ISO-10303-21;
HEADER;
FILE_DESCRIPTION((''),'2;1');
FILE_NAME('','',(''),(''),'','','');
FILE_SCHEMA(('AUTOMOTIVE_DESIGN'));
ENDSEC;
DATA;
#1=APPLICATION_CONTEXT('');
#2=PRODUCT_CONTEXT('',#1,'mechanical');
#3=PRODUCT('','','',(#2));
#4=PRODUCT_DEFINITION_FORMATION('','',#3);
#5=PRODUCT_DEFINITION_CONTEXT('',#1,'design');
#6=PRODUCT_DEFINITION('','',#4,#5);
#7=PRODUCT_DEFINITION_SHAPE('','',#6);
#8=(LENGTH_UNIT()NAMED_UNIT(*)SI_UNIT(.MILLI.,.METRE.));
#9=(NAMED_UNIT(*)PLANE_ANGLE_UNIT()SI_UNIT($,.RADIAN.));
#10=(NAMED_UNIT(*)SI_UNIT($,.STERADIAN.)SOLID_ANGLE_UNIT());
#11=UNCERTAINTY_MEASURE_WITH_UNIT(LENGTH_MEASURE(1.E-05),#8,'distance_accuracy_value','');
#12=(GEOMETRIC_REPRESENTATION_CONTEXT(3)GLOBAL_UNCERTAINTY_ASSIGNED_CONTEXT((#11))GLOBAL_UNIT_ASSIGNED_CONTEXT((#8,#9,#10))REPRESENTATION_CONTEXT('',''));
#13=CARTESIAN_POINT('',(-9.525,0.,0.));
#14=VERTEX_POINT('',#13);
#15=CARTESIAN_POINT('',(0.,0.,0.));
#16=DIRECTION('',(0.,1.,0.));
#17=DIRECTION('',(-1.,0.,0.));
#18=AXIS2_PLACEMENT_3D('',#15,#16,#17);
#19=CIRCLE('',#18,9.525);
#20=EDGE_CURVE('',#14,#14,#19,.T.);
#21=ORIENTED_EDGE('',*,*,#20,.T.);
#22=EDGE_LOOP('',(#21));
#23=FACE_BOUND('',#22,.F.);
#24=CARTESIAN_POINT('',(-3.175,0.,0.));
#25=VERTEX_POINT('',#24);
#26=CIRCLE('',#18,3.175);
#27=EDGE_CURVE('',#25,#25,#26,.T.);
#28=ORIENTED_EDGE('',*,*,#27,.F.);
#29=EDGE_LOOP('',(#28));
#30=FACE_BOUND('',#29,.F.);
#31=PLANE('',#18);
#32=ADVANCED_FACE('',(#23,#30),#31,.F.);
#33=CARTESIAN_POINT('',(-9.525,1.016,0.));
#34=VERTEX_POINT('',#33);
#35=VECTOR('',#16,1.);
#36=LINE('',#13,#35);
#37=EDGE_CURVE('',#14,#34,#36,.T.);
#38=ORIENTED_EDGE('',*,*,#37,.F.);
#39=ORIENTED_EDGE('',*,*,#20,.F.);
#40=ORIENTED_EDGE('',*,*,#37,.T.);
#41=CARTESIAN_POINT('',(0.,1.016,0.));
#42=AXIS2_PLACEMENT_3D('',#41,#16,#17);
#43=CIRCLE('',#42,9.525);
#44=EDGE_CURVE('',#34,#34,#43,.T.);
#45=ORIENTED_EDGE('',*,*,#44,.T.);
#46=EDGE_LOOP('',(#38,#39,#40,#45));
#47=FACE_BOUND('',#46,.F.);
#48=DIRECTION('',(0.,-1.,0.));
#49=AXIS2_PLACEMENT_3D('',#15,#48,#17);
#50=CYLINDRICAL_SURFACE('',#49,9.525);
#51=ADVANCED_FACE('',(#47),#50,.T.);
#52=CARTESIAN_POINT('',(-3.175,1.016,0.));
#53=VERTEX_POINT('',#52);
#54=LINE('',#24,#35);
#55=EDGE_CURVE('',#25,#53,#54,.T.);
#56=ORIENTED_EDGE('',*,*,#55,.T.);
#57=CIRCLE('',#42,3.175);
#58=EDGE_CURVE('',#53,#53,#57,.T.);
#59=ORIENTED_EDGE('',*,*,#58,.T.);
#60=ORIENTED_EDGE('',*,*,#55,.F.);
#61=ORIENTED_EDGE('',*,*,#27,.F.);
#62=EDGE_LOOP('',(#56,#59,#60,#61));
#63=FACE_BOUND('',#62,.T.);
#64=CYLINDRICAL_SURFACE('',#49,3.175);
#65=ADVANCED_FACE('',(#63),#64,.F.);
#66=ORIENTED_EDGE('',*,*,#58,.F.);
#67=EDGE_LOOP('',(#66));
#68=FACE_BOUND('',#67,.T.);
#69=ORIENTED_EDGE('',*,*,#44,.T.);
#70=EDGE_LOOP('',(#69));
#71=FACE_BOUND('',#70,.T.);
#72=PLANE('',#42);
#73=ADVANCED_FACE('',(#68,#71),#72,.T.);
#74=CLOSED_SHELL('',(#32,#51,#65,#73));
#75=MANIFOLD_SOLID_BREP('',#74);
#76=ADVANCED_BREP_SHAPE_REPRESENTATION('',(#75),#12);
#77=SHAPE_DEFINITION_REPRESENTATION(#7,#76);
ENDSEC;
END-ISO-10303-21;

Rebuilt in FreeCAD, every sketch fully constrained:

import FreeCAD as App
import Part
import Sketcher
Q = App.Units.Quantity

doc = App.newDocument("Part")
body = doc.addObject("PartDesign::Body", "Body")

sketch1 = body.newObject("Sketcher::SketchObject", "Sketch")
sketch1.AttachmentSupport = (doc.getObject("XZ_Plane"), [""])
sketch1.MapMode = "FlatFace"
sketch1.addGeometry(Part.Circle(App.Vector(0, 0, 0), App.Vector(0, 0, 1), 9.5), False)
sketch1.addGeometry(Part.Circle(App.Vector(0, 0, 0), App.Vector(0, 0, 1), 3.2), False)
sketch1.addConstraint(Sketcher.Constraint("Coincident", 0, 3, -1, 1))
sketch1.addConstraint(Sketcher.Constraint("Coincident", 1, 3, -1, 1))
sketch1.addConstraint(Sketcher.Constraint("Diameter", 0, Q("0.75 in")))
sketch1.addConstraint(Sketcher.Constraint("Diameter", 1, Q("0.25 in")))
pad1 = body.newObject("PartDesign::Pad", "Pad")
pad1.Profile = sketch1
pad1.Length = Q("0.04 in")
pad1.Reversed = True

doc.recompute()
